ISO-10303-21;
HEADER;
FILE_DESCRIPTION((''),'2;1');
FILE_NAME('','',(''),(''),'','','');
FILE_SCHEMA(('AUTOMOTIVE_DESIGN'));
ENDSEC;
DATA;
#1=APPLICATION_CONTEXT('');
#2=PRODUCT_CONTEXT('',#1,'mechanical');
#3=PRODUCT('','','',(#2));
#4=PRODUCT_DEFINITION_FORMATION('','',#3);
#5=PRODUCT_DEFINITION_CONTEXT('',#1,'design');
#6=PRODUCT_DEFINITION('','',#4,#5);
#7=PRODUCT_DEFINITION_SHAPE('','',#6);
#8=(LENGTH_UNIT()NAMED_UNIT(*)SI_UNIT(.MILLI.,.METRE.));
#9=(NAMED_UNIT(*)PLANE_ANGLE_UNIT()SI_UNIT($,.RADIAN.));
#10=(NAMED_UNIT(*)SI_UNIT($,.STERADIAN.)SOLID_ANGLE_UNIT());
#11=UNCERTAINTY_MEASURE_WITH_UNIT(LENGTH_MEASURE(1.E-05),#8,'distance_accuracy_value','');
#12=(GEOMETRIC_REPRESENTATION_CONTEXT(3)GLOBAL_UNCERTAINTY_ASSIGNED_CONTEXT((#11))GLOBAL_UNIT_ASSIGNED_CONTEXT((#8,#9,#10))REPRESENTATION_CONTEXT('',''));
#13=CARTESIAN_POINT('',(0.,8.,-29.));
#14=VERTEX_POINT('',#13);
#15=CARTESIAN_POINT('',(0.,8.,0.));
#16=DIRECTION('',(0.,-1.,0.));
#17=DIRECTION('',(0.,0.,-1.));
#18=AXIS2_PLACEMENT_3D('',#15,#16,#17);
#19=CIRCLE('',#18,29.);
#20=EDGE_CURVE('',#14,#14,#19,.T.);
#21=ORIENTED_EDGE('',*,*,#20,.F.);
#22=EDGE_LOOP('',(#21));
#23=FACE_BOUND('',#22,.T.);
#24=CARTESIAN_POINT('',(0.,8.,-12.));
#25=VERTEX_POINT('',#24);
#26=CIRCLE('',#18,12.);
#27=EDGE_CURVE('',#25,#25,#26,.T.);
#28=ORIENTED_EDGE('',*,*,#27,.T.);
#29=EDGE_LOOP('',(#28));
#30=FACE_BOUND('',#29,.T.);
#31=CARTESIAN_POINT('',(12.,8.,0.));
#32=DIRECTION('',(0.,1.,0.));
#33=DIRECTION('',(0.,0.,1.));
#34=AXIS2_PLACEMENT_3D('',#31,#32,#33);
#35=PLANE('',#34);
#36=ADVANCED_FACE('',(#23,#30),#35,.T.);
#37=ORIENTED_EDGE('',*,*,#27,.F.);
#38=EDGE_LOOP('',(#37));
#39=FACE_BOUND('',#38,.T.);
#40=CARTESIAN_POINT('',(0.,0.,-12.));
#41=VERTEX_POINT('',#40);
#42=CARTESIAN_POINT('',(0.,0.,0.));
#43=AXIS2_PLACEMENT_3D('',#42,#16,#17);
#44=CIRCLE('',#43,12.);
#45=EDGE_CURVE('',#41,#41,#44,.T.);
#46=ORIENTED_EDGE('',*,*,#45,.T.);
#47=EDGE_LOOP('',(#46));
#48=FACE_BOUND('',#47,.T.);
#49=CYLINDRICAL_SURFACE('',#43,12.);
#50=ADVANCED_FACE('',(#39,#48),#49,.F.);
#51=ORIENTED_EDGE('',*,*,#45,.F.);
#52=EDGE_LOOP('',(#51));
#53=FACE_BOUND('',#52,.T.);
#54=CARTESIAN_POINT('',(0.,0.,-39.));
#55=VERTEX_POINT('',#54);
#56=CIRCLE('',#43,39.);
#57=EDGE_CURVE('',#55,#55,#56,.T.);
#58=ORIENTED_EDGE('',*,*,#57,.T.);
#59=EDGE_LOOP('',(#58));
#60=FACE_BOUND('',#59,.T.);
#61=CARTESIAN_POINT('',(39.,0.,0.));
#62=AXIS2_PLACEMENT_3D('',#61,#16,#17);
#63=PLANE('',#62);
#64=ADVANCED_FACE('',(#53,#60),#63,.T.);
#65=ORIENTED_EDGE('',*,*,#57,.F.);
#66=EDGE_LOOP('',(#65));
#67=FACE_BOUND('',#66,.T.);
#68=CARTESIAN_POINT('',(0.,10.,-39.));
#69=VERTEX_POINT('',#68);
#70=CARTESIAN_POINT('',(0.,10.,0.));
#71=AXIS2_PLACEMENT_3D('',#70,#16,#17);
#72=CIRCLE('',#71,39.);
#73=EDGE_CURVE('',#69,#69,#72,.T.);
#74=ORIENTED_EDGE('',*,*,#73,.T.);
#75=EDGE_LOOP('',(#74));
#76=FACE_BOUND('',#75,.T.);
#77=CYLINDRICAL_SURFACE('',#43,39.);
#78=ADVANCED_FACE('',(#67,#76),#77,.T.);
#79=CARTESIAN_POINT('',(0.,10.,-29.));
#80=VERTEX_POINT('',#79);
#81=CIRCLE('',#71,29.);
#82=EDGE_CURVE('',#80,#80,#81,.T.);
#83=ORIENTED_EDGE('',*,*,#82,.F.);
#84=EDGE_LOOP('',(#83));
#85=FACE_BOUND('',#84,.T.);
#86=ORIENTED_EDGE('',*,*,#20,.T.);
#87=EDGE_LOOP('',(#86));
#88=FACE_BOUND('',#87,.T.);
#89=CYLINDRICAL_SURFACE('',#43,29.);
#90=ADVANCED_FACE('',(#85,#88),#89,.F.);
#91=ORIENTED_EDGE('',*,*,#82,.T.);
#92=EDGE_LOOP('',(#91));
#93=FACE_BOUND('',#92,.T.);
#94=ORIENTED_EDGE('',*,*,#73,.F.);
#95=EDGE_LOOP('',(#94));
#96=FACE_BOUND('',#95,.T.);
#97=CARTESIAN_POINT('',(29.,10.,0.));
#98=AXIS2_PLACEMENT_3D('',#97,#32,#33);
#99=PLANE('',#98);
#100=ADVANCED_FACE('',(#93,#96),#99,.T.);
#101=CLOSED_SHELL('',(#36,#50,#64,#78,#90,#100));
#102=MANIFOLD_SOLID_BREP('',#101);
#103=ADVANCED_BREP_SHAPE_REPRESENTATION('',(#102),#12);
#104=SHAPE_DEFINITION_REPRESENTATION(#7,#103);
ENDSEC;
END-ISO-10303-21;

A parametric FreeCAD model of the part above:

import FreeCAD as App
import Part
import Sketcher
from FreeCAD import Vector
Q = App.Units.Quantity


def add_polygon(sketch, points):
    """Adds a closed chain of lines whose ends are joined by coincident constraints."""
    first, n = sketch.GeometryCount, len(points)
    for a, b in zip(points, points[1:] + points[:1]):
        sketch.addGeometry(Part.LineSegment(App.Vector(*a, 0), App.Vector(*b, 0)), False)
    for i in range(n):
        sketch.addConstraint(Sketcher.Constraint("Coincident", first + i, 2, first + (i + 1) % n, 1))

doc = App.newDocument("Part")
body = doc.addObject("PartDesign::Body", "Body")

# Sketch on XY plane
sketch1 = body.newObject("Sketcher::SketchObject", "Sketch")
sketch1.AttachmentSupport = (doc.getObject("XY_Plane"), [""])
sketch1.MapMode = "FlatFace"
add_polygon(sketch1, [(12, 8), (12, 0), (39, 0), (39, 10), (29, 10), (29, 8)])  # lines 0-5
sketch1.addConstraint([
    Sketcher.Constraint("Vertical", 0),
    Sketcher.Constraint("Horizontal", 1),
    Sketcher.Constraint("Vertical", 2),
    Sketcher.Constraint("Horizontal", 3),
    Sketcher.Constraint("Vertical", 4),
    Sketcher.Constraint("Horizontal", 5),
    Sketcher.Constraint("PointOnObject", 0, 2, -1),
    Sketcher.Constraint("Equal", 3, 2),
    Sketcher.Constraint("DistanceX", 1, 1, 1, 2, Q("27 mm")),
    Sketcher.Constraint("DistanceX", 3, 2, 3, 1, Q("10 mm")),
    Sketcher.Constraint("DistanceY", 0, 2, 0, 1, Q("8 mm")),
    Sketcher.Constraint("DistanceX", -1, 1, 0, 2, Q("12 mm")),
])
revolution = body.newObject("PartDesign::Revolution", "Revolution")
revolution.Profile = sketch1
revolution.ReferenceAxis = (sketch1, ["V_Axis"])
revolution.Angle = 360

doc.recompute()
